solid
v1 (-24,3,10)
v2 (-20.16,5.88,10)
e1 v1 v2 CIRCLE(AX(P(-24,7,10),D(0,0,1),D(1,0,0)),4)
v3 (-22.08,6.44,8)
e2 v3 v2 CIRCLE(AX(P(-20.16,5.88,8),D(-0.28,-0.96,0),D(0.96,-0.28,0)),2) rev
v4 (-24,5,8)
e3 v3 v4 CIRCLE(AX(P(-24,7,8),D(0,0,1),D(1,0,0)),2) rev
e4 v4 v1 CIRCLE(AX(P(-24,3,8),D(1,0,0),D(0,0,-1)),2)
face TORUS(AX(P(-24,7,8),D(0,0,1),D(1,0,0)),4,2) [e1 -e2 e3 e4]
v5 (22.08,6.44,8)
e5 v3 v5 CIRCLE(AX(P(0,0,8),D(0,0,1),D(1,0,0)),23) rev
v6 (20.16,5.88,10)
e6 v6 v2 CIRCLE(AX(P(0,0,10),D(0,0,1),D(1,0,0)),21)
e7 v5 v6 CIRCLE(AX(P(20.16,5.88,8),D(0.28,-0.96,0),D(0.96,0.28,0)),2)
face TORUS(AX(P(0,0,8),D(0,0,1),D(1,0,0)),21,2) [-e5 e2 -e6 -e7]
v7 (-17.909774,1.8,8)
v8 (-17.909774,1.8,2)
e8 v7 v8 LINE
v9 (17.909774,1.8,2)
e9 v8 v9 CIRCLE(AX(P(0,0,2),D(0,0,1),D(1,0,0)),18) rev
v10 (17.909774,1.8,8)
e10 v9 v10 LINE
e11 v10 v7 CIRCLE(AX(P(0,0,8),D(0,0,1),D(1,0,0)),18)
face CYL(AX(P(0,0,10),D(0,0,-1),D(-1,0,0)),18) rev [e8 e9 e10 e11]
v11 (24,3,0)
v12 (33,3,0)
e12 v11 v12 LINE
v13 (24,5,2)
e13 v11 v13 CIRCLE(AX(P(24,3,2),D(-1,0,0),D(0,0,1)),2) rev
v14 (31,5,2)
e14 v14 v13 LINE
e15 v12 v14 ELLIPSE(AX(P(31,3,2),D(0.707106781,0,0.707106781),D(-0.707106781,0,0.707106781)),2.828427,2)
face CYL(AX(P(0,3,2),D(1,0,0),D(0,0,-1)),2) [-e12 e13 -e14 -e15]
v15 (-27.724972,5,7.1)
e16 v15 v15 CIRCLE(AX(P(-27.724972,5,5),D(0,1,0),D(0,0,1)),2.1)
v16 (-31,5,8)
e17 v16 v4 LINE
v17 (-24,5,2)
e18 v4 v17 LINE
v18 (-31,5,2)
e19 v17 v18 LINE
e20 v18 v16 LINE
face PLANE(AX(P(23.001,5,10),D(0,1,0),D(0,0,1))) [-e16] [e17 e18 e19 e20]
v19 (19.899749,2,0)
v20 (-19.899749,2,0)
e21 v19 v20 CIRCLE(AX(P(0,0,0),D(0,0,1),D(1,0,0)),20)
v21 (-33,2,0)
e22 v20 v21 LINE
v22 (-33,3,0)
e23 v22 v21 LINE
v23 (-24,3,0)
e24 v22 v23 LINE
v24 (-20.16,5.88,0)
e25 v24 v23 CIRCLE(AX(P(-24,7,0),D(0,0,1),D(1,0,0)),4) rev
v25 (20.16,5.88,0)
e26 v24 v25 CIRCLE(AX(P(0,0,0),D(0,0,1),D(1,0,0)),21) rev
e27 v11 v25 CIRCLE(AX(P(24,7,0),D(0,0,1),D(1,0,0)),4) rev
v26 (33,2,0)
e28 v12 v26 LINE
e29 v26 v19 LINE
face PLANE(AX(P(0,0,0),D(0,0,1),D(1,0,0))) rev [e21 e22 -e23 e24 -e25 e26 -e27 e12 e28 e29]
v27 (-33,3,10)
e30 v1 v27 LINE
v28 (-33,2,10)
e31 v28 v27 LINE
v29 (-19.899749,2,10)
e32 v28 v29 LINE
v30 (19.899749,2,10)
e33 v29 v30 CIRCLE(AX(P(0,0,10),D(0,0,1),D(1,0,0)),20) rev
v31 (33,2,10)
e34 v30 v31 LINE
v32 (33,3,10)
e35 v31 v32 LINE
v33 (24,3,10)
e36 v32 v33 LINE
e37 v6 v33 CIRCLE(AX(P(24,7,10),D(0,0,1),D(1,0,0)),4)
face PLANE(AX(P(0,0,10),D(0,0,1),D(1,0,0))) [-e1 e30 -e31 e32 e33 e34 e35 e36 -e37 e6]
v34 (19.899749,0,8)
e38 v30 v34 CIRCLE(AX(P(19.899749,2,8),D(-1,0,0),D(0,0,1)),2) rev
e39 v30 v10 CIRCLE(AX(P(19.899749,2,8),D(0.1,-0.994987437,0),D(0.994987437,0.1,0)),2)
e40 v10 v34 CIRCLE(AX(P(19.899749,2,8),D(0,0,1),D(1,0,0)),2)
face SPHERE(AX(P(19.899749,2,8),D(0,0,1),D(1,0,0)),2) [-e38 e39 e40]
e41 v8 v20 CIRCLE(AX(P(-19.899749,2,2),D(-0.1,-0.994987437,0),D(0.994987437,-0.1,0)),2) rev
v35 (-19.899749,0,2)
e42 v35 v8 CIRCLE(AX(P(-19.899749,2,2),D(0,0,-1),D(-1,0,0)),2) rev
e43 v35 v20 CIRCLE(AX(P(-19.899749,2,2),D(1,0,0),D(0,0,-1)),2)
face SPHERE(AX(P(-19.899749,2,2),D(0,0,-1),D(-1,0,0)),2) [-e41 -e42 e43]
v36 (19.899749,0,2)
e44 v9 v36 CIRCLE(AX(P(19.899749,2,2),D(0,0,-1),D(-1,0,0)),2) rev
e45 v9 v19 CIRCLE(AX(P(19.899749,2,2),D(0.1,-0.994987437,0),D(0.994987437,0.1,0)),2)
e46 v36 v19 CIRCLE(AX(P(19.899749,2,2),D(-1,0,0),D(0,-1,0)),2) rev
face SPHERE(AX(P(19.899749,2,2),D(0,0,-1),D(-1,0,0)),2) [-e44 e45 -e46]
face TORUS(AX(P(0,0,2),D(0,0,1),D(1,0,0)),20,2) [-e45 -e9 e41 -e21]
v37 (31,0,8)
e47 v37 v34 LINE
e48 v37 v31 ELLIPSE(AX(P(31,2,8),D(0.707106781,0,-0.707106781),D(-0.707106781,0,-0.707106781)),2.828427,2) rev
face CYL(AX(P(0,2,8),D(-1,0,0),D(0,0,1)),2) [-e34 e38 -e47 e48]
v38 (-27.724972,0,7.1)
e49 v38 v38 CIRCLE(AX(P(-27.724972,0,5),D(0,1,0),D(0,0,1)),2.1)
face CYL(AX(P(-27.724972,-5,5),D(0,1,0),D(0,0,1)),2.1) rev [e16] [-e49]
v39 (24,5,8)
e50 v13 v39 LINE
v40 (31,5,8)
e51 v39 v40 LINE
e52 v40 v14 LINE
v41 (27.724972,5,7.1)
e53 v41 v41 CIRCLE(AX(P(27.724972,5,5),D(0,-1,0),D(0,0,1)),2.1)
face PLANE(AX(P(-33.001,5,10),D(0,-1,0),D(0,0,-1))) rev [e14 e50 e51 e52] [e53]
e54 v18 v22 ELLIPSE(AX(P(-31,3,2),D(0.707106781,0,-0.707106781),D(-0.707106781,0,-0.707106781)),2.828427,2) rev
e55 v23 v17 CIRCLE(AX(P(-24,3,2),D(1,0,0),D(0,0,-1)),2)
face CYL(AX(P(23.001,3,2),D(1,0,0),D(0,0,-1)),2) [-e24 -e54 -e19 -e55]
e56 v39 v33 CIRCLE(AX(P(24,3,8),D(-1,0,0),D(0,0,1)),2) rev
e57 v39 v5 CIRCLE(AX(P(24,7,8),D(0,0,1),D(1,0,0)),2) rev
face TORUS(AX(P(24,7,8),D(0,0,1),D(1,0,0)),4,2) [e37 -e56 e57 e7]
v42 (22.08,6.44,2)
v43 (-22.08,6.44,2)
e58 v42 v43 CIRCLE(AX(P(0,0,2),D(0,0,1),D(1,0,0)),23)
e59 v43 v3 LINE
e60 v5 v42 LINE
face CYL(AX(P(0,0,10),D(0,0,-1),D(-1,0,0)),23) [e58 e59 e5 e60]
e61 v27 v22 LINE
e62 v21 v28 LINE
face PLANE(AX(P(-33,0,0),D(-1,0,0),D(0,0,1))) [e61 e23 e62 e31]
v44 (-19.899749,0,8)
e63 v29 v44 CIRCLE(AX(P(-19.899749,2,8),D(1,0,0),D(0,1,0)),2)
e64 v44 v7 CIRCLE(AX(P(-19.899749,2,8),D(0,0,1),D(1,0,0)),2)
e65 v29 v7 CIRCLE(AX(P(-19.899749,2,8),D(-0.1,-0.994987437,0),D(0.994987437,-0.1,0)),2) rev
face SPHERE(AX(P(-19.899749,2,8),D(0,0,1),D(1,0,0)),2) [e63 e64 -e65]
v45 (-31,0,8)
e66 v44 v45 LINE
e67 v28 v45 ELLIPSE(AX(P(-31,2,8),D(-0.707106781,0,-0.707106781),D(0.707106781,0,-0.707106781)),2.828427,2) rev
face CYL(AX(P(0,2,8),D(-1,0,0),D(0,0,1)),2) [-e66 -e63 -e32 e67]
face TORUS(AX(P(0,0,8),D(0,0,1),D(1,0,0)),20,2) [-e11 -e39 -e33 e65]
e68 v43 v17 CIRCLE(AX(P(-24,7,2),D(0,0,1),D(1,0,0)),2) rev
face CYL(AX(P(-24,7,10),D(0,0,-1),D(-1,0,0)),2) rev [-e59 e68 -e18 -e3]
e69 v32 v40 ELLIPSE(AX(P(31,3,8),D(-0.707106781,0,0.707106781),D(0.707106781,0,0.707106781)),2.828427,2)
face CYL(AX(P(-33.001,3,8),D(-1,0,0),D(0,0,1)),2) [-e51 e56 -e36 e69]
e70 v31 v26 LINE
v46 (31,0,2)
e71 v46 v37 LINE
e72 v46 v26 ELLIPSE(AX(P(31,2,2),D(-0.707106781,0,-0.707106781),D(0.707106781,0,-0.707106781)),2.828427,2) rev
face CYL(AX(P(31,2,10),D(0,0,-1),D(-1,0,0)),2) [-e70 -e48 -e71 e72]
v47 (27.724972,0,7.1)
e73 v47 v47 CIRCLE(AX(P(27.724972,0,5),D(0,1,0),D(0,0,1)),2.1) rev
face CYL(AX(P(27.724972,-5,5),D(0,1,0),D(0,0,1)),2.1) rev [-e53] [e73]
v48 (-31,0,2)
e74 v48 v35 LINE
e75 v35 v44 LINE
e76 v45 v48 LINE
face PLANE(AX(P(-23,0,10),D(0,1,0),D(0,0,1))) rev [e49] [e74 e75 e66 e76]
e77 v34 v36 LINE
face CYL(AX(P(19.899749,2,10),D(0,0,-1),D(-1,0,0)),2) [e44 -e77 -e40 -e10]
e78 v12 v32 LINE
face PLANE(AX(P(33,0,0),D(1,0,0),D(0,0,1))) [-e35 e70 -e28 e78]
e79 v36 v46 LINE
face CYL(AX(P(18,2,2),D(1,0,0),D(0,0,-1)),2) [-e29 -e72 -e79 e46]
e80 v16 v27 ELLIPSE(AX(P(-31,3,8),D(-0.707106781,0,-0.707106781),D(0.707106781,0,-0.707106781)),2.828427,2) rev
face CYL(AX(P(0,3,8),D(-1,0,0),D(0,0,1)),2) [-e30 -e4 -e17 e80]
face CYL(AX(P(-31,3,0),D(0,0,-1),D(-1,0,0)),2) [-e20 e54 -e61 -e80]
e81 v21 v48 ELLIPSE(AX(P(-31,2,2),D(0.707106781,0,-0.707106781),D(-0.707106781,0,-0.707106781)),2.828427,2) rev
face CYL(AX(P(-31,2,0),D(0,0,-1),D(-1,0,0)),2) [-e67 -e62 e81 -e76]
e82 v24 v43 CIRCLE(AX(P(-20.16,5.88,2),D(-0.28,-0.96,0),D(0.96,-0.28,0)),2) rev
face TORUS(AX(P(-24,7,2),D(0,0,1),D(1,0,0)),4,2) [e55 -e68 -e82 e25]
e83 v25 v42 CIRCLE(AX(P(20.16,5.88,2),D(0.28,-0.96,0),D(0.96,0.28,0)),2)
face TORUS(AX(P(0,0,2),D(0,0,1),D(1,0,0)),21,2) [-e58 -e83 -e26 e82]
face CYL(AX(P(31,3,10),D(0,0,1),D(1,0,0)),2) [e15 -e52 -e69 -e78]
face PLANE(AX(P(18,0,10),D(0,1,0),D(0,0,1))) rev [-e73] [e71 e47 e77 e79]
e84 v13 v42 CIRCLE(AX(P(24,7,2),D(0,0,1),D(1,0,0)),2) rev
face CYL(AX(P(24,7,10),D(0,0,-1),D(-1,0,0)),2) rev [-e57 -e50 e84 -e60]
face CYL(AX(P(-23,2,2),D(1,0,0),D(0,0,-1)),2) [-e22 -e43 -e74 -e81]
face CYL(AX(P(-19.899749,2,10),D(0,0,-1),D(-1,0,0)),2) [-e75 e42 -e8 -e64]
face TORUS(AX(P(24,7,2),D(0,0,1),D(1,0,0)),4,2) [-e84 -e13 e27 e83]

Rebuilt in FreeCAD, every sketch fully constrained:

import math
import FreeCAD as App
import Part
import Sketcher


def edges_at(feature, points):
    """Names of the edges that pass closest to the given points."""
    edges = feature.Shape.Edges
    near = lambda p: min(range(len(edges)), key=lambda i: edges[i].distToShape(Part.Vertex(*p))[0])
    return sorted({f"Edge{near(p) + 1}" for p in points})


def add_polygon(sketch, points):
    """Adds a closed chain of lines whose ends are joined by coincident constraints."""
    first, n = sketch.GeometryCount, len(points)
    for a, b in zip(points, points[1:] + points[:1]):
        sketch.addGeometry(Part.LineSegment(App.Vector(*a, 0), App.Vector(*b, 0)), False)
    for i in range(n):
        sketch.addConstraint(Sketcher.Constraint("Coincident", first + i, 2, first + (i + 1) % n, 1))

doc = App.newDocument("Part")
body = doc.addObject("PartDesign::Body", "Body")

sketch1 = doc.addObject("Sketcher::SketchObject", "Sketch")
body.addObject(sketch1)
sketch1.AttachmentSupport = (doc.XY_Plane, [""])
sketch1.MapMode = "FlatFace"
sketch1.addGeometry([
    Part.LineSegment(App.Vector(-23, 0, 0), App.Vector(-18, 0, 0)),
    Part.ArcOfCircle(Part.Circle(App.Vector(0, 0, 0), App.Vector(0, 0, 1), 18), math.radians(0), math.radians(180)),
    Part.LineSegment(App.Vector(18, 0, 0), App.Vector(23, 0, 0)),
    Part.ArcOfCircle(Part.Circle(App.Vector(0, 0, 0), App.Vector(0, 0, 1), 23), math.radians(0), math.radians(180)),
], False)
sketch1.addConstraint([
    Sketcher.Constraint("Coincident", 0, 2, 1, 2),
    Sketcher.Constraint("Coincident", 1, 1, 2, 1),
    Sketcher.Constraint("Coincident", 2, 2, 3, 1),
    Sketcher.Constraint("Coincident", 3, 2, 0, 1),
    Sketcher.Constraint("Horizontal", 0),
    Sketcher.Constraint("Horizontal", 2),
    Sketcher.Constraint("Coincident", 1, 3, -1, 1),
    Sketcher.Constraint("Coincident", 3, 3, -1, 1),
    Sketcher.Constraint("PointOnObject", 0, 2, -1),
    Sketcher.Constraint("PointOnObject", 1, 1, -1),
    Sketcher.Constraint("Radius", 1, 18.0),
    Sketcher.Constraint("Radius", 3, 23.0),
])
pad1 = doc.addObject("PartDesign::Pad", "Pad")
body.addObject(pad1)
pad1.Profile = sketch1
pad1.Length = 10

sketch2 = doc.addObject("Sketcher::SketchObject", "Sketch001")
body.addObject(sketch2)
sketch2.AttachmentSupport = (doc.YZ_Plane, [""])
sketch2.MapMode = "FlatFace"
sketch2.AttachmentOffset = App.Placement(App.Vector(0, 0, -22.449944), App.Rotation())
add_polygon(sketch2, [(5, 0), (0, 0), (0, 10), (5, 10)])
sketch2.addConstraint([
    Sketcher.Constraint("Horizontal", 0),
    Sketcher.Constraint("Vertical", 1),
    Sketcher.Constraint("Horizontal", 2),
    Sketcher.Constraint("Vertical", 3),
    Sketcher.Constraint("Coincident", 0, 2, -1, 1),
    Sketcher.Constraint("DistanceX", 0, 2, 0, 1, 5.0),
    Sketcher.Constraint("DistanceY", 1, 1, 1, 2, 10.0),
])
pad2 = doc.addObject("PartDesign::Pad", "Pad001")
body.addObject(pad2)
pad2.Profile = sketch2
pad2.Length = 10.550056
pad2.Reversed = True

sketch3 = doc.addObject("Sketcher::SketchObject", "Sketch002")
body.addObject(sketch3)
sketch3.AttachmentSupport = (doc.XZ_Plane, [""])
sketch3.MapMode = "FlatFace"
sketch3.AttachmentOffset = App.Placement(App.Vector(0, 0, -5), App.Rotation())
sketch3.addGeometry(Part.Circle(App.Vector(-27.7, 5, 0), App.Vector(0, 0, 1), 2.1), False)
sketch3.addConstraint([
    Sketcher.Constraint("Diameter", 0, 4.2),
    Sketcher.Constraint("DistanceY", -1, 1, 0, 3, 5.0),
    Sketcher.Constraint("DistanceX", 0, 3, -1, 1, 27.724972),
])
pocket1 = doc.addObject("PartDesign::Pocket", "Pocket")
body.addObject(pocket1)
pocket1.Profile = sketch3
pocket1.Length = 10
pocket1.Reversed = True
doc.recompute()

mirrored = doc.addObject("PartDesign::Mirrored", "Mirrored")
body.addObject(mirrored)
mirrored.Originals = [pad2, pocket1]
mirrored.MirrorPlane = (doc.YZ_Plane, [""])
body.Tip = mirrored
doc.recompute()

fillet = doc.addObject("PartDesign::Fillet", "Fillet")
body.addObject(fillet)
fillet.Base = (mirrored, edges_at(mirrored, [
    (0, 18, 10),
    (-22.45, 5, 5),
    (-27.725, 5, 0),
    (-27.725, 5, 10),
    (-33, 5, 5),
    (-33, 0, 5),
    (25.5, 0, 10),
    (0, 23, 0),
    (0, 23, 10),
    (27.725, 5, 0),
    (27.725, 5, 10),
    (33, 5, 5),
    (22.45, 5, 5),
    (33, 0, 5),
    (25.5, 0, 0),
    (0, 18, 0),
    (-25.5, 0, 0),
    (18, 0, 5),
    (-18, 0, 5),
    (-25.5, 0, 10),
]))
fillet.Radius = 2

doc.recompute()
